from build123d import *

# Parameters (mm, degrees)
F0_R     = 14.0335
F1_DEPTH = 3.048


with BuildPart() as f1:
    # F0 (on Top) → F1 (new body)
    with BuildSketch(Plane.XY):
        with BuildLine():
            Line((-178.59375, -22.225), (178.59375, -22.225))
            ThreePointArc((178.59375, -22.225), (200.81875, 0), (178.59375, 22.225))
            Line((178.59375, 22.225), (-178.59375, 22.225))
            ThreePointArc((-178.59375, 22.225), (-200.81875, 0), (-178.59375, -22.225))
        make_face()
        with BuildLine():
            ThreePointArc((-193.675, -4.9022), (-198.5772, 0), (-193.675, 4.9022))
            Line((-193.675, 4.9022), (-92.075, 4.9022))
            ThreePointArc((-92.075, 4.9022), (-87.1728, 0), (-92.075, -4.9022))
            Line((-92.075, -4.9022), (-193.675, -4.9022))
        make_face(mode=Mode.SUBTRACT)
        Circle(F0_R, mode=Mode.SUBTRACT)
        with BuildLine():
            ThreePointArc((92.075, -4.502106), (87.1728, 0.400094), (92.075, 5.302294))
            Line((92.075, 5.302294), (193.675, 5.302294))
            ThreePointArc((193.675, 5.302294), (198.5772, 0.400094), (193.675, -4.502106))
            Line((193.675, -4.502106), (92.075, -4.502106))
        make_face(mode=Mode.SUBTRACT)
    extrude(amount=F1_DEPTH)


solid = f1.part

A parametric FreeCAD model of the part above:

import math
import FreeCAD as App
import Part
import Sketcher
from FreeCAD import Vector
Q = App.Units.Quantity

doc = App.newDocument("Part")
params = doc.addObject("Spreadsheet::Sheet", "Params")
for row, (alias, value) in enumerate([
    ("sketch1_width", "4 in"),
    ("sketch1_diameter", "1.105 in"),
    ("sketch1_radius", "0.875 in"),
    ("sketch1_radius2", "0.193 in"),
    ("sketch1_width2", "14.0625 in"),
    ("pad1_length", "0.12 in"),
], start=1):
    params.set(f"A{row}", alias)
    params.set(f"B{row}", "=" + value)
    params.setAlias(f"B{row}", alias)

body = doc.addObject("PartDesign::Body", "Body")

# Sketch on XY plane
sketch1 = body.newObject("Sketcher::SketchObject", "Sketch")
sketch1.AttachmentSupport = (doc.getObject("XY_Plane"), [""])
sketch1.MapMode = "FlatFace"
sketch1.addGeometry([
    Part.LineSegment(Vector(-178.6, -22.2, 0), Vector(178.6, -22.2, 0)),  # 0
    Part.ArcOfCircle(Part.Circle(Vector(178.6, 0, 0), Vector(0, 0, 1), 22.2), math.radians(-90), math.radians(90)),  # 1
    Part.LineSegment(Vector(178.6, 22.2, 0), Vector(-178.6, 22.2, 0)),  # 2
    Part.ArcOfCircle(Part.Circle(Vector(-178.6, 0, 0), Vector(0, 0, 1), 22.2), math.radians(90), math.radians(270)),  # 3
    Part.LineSegment(Vector(-92.1, -4.9, 0), Vector(-193.7, -4.9, 0)),  # 4
    Part.ArcOfCircle(Part.Circle(Vector(-193.7, 0, 0), Vector(0, 0, 1), 4.9), math.radians(90), math.radians(270)),  # 5
    Part.LineSegment(Vector(-193.7, 4.9, 0), Vector(-92.1, 4.9, 0)),  # 6
    Part.ArcOfCircle(Part.Circle(Vector(-92.1, 0, 0), Vector(0, 0, 1), 4.9), math.radians(-90), math.radians(90)),  # 7
    Part.Circle(Vector(0, 0, 0), Vector(0, 0, 1), 14),  # 8
    Part.LineSegment(Vector(193.7, -4.5, 0), Vector(92.1, -4.5, 0)),  # 9
    Part.ArcOfCircle(Part.Circle(Vector(92.1, 0.4, 0), Vector(0, 0, 1), 4.9), math.radians(90), math.radians(270)),  # 10
    Part.LineSegment(Vector(92.1, 5.3, 0), Vector(193.7, 5.3, 0)),  # 11
    Part.ArcOfCircle(Part.Circle(Vector(193.7, 0.4, 0), Vector(0, 0, 1), 4.9), math.radians(-90), math.radians(90)),  # 12
], False)
sketch1.addConstraint([
    Sketcher.Constraint("Tangent", 0, 2, 1, 1),
    Sketcher.Constraint("Tangent", 1, 2, 2, 1),
    Sketcher.Constraint("Tangent", 2, 2, 3, 1),
    Sketcher.Constraint("Tangent", 3, 2, 0, 1),
    Sketcher.Constraint("Tangent", 4, 2, 5, 2),
    Sketcher.Constraint("Tangent", 5, 1, 6, 1),
    Sketcher.Constraint("Tangent", 6, 2, 7, 2),
    Sketcher.Constraint("Tangent", 7, 1, 4, 1),
    Sketcher.Constraint("Tangent", 9, 2, 10, 2),
    Sketcher.Constraint("Tangent", 10, 1, 11, 1),
    Sketcher.Constraint("Tangent", 11, 2, 12, 2),
    Sketcher.Constraint("Tangent", 12, 1, 9, 1),
    Sketcher.Constraint("Horizontal", 0),
    Sketcher.Constraint("Horizontal", 2),
    Sketcher.Constraint("Horizontal", 4),
    Sketcher.Constraint("Horizontal", 6),
    Sketcher.Constraint("Horizontal", 9),
    Sketcher.Constraint("Horizontal", 11),
    Sketcher.Constraint("Coincident", 8, 3, -1, 1),
    Sketcher.Constraint("Equal", 7, 10),
    Sketcher.Constraint("Symmetric", 1, 3, 3, 3, -1, 1),
    Sketcher.Constraint("PointOnObject", 5, 3, -1),
    Sketcher.Constraint("Equal", 6, 9),
    Sketcher.Constraint("DistanceX", 4, 2, 4, 1, Q("4 in")),
    Sketcher.Constraint("Diameter", 8, Q("1.105 in")),
    Sketcher.Constraint("Radius", 1, Q("0.875 in")),
    Sketcher.Constraint("Radius", 5, Q("0.193 in")),
    Sketcher.Constraint("DistanceX", 0, 1, 0, 2, Q("14.0625 in")),
    Sketcher.Constraint("DistanceX", 7, 3, 10, 3, Q("7.25 in")),
    Sketcher.Constraint("DistanceX", 5, 3, -1, 1, Q("7.625 in")),
    Sketcher.Constraint("DistanceY", -1, 1, 10, 3, 0.400094),
])
sketch1.setExpression("Constraints[23]", "Params.sketch1_width")
sketch1.setExpression("Constraints[24]", "Params.sketch1_diameter")
sketch1.setExpression("Constraints[25]", "Params.sketch1_radius")
sketch1.setExpression("Constraints[26]", "Params.sketch1_radius2")
sketch1.setExpression("Constraints[27]", "Params.sketch1_width2")
pad1 = body.newObject("PartDesign::Pad", "Pad")
pad1.Profile = sketch1
pad1.setExpression("Length", "Params.pad1_length")

doc.recompute()
